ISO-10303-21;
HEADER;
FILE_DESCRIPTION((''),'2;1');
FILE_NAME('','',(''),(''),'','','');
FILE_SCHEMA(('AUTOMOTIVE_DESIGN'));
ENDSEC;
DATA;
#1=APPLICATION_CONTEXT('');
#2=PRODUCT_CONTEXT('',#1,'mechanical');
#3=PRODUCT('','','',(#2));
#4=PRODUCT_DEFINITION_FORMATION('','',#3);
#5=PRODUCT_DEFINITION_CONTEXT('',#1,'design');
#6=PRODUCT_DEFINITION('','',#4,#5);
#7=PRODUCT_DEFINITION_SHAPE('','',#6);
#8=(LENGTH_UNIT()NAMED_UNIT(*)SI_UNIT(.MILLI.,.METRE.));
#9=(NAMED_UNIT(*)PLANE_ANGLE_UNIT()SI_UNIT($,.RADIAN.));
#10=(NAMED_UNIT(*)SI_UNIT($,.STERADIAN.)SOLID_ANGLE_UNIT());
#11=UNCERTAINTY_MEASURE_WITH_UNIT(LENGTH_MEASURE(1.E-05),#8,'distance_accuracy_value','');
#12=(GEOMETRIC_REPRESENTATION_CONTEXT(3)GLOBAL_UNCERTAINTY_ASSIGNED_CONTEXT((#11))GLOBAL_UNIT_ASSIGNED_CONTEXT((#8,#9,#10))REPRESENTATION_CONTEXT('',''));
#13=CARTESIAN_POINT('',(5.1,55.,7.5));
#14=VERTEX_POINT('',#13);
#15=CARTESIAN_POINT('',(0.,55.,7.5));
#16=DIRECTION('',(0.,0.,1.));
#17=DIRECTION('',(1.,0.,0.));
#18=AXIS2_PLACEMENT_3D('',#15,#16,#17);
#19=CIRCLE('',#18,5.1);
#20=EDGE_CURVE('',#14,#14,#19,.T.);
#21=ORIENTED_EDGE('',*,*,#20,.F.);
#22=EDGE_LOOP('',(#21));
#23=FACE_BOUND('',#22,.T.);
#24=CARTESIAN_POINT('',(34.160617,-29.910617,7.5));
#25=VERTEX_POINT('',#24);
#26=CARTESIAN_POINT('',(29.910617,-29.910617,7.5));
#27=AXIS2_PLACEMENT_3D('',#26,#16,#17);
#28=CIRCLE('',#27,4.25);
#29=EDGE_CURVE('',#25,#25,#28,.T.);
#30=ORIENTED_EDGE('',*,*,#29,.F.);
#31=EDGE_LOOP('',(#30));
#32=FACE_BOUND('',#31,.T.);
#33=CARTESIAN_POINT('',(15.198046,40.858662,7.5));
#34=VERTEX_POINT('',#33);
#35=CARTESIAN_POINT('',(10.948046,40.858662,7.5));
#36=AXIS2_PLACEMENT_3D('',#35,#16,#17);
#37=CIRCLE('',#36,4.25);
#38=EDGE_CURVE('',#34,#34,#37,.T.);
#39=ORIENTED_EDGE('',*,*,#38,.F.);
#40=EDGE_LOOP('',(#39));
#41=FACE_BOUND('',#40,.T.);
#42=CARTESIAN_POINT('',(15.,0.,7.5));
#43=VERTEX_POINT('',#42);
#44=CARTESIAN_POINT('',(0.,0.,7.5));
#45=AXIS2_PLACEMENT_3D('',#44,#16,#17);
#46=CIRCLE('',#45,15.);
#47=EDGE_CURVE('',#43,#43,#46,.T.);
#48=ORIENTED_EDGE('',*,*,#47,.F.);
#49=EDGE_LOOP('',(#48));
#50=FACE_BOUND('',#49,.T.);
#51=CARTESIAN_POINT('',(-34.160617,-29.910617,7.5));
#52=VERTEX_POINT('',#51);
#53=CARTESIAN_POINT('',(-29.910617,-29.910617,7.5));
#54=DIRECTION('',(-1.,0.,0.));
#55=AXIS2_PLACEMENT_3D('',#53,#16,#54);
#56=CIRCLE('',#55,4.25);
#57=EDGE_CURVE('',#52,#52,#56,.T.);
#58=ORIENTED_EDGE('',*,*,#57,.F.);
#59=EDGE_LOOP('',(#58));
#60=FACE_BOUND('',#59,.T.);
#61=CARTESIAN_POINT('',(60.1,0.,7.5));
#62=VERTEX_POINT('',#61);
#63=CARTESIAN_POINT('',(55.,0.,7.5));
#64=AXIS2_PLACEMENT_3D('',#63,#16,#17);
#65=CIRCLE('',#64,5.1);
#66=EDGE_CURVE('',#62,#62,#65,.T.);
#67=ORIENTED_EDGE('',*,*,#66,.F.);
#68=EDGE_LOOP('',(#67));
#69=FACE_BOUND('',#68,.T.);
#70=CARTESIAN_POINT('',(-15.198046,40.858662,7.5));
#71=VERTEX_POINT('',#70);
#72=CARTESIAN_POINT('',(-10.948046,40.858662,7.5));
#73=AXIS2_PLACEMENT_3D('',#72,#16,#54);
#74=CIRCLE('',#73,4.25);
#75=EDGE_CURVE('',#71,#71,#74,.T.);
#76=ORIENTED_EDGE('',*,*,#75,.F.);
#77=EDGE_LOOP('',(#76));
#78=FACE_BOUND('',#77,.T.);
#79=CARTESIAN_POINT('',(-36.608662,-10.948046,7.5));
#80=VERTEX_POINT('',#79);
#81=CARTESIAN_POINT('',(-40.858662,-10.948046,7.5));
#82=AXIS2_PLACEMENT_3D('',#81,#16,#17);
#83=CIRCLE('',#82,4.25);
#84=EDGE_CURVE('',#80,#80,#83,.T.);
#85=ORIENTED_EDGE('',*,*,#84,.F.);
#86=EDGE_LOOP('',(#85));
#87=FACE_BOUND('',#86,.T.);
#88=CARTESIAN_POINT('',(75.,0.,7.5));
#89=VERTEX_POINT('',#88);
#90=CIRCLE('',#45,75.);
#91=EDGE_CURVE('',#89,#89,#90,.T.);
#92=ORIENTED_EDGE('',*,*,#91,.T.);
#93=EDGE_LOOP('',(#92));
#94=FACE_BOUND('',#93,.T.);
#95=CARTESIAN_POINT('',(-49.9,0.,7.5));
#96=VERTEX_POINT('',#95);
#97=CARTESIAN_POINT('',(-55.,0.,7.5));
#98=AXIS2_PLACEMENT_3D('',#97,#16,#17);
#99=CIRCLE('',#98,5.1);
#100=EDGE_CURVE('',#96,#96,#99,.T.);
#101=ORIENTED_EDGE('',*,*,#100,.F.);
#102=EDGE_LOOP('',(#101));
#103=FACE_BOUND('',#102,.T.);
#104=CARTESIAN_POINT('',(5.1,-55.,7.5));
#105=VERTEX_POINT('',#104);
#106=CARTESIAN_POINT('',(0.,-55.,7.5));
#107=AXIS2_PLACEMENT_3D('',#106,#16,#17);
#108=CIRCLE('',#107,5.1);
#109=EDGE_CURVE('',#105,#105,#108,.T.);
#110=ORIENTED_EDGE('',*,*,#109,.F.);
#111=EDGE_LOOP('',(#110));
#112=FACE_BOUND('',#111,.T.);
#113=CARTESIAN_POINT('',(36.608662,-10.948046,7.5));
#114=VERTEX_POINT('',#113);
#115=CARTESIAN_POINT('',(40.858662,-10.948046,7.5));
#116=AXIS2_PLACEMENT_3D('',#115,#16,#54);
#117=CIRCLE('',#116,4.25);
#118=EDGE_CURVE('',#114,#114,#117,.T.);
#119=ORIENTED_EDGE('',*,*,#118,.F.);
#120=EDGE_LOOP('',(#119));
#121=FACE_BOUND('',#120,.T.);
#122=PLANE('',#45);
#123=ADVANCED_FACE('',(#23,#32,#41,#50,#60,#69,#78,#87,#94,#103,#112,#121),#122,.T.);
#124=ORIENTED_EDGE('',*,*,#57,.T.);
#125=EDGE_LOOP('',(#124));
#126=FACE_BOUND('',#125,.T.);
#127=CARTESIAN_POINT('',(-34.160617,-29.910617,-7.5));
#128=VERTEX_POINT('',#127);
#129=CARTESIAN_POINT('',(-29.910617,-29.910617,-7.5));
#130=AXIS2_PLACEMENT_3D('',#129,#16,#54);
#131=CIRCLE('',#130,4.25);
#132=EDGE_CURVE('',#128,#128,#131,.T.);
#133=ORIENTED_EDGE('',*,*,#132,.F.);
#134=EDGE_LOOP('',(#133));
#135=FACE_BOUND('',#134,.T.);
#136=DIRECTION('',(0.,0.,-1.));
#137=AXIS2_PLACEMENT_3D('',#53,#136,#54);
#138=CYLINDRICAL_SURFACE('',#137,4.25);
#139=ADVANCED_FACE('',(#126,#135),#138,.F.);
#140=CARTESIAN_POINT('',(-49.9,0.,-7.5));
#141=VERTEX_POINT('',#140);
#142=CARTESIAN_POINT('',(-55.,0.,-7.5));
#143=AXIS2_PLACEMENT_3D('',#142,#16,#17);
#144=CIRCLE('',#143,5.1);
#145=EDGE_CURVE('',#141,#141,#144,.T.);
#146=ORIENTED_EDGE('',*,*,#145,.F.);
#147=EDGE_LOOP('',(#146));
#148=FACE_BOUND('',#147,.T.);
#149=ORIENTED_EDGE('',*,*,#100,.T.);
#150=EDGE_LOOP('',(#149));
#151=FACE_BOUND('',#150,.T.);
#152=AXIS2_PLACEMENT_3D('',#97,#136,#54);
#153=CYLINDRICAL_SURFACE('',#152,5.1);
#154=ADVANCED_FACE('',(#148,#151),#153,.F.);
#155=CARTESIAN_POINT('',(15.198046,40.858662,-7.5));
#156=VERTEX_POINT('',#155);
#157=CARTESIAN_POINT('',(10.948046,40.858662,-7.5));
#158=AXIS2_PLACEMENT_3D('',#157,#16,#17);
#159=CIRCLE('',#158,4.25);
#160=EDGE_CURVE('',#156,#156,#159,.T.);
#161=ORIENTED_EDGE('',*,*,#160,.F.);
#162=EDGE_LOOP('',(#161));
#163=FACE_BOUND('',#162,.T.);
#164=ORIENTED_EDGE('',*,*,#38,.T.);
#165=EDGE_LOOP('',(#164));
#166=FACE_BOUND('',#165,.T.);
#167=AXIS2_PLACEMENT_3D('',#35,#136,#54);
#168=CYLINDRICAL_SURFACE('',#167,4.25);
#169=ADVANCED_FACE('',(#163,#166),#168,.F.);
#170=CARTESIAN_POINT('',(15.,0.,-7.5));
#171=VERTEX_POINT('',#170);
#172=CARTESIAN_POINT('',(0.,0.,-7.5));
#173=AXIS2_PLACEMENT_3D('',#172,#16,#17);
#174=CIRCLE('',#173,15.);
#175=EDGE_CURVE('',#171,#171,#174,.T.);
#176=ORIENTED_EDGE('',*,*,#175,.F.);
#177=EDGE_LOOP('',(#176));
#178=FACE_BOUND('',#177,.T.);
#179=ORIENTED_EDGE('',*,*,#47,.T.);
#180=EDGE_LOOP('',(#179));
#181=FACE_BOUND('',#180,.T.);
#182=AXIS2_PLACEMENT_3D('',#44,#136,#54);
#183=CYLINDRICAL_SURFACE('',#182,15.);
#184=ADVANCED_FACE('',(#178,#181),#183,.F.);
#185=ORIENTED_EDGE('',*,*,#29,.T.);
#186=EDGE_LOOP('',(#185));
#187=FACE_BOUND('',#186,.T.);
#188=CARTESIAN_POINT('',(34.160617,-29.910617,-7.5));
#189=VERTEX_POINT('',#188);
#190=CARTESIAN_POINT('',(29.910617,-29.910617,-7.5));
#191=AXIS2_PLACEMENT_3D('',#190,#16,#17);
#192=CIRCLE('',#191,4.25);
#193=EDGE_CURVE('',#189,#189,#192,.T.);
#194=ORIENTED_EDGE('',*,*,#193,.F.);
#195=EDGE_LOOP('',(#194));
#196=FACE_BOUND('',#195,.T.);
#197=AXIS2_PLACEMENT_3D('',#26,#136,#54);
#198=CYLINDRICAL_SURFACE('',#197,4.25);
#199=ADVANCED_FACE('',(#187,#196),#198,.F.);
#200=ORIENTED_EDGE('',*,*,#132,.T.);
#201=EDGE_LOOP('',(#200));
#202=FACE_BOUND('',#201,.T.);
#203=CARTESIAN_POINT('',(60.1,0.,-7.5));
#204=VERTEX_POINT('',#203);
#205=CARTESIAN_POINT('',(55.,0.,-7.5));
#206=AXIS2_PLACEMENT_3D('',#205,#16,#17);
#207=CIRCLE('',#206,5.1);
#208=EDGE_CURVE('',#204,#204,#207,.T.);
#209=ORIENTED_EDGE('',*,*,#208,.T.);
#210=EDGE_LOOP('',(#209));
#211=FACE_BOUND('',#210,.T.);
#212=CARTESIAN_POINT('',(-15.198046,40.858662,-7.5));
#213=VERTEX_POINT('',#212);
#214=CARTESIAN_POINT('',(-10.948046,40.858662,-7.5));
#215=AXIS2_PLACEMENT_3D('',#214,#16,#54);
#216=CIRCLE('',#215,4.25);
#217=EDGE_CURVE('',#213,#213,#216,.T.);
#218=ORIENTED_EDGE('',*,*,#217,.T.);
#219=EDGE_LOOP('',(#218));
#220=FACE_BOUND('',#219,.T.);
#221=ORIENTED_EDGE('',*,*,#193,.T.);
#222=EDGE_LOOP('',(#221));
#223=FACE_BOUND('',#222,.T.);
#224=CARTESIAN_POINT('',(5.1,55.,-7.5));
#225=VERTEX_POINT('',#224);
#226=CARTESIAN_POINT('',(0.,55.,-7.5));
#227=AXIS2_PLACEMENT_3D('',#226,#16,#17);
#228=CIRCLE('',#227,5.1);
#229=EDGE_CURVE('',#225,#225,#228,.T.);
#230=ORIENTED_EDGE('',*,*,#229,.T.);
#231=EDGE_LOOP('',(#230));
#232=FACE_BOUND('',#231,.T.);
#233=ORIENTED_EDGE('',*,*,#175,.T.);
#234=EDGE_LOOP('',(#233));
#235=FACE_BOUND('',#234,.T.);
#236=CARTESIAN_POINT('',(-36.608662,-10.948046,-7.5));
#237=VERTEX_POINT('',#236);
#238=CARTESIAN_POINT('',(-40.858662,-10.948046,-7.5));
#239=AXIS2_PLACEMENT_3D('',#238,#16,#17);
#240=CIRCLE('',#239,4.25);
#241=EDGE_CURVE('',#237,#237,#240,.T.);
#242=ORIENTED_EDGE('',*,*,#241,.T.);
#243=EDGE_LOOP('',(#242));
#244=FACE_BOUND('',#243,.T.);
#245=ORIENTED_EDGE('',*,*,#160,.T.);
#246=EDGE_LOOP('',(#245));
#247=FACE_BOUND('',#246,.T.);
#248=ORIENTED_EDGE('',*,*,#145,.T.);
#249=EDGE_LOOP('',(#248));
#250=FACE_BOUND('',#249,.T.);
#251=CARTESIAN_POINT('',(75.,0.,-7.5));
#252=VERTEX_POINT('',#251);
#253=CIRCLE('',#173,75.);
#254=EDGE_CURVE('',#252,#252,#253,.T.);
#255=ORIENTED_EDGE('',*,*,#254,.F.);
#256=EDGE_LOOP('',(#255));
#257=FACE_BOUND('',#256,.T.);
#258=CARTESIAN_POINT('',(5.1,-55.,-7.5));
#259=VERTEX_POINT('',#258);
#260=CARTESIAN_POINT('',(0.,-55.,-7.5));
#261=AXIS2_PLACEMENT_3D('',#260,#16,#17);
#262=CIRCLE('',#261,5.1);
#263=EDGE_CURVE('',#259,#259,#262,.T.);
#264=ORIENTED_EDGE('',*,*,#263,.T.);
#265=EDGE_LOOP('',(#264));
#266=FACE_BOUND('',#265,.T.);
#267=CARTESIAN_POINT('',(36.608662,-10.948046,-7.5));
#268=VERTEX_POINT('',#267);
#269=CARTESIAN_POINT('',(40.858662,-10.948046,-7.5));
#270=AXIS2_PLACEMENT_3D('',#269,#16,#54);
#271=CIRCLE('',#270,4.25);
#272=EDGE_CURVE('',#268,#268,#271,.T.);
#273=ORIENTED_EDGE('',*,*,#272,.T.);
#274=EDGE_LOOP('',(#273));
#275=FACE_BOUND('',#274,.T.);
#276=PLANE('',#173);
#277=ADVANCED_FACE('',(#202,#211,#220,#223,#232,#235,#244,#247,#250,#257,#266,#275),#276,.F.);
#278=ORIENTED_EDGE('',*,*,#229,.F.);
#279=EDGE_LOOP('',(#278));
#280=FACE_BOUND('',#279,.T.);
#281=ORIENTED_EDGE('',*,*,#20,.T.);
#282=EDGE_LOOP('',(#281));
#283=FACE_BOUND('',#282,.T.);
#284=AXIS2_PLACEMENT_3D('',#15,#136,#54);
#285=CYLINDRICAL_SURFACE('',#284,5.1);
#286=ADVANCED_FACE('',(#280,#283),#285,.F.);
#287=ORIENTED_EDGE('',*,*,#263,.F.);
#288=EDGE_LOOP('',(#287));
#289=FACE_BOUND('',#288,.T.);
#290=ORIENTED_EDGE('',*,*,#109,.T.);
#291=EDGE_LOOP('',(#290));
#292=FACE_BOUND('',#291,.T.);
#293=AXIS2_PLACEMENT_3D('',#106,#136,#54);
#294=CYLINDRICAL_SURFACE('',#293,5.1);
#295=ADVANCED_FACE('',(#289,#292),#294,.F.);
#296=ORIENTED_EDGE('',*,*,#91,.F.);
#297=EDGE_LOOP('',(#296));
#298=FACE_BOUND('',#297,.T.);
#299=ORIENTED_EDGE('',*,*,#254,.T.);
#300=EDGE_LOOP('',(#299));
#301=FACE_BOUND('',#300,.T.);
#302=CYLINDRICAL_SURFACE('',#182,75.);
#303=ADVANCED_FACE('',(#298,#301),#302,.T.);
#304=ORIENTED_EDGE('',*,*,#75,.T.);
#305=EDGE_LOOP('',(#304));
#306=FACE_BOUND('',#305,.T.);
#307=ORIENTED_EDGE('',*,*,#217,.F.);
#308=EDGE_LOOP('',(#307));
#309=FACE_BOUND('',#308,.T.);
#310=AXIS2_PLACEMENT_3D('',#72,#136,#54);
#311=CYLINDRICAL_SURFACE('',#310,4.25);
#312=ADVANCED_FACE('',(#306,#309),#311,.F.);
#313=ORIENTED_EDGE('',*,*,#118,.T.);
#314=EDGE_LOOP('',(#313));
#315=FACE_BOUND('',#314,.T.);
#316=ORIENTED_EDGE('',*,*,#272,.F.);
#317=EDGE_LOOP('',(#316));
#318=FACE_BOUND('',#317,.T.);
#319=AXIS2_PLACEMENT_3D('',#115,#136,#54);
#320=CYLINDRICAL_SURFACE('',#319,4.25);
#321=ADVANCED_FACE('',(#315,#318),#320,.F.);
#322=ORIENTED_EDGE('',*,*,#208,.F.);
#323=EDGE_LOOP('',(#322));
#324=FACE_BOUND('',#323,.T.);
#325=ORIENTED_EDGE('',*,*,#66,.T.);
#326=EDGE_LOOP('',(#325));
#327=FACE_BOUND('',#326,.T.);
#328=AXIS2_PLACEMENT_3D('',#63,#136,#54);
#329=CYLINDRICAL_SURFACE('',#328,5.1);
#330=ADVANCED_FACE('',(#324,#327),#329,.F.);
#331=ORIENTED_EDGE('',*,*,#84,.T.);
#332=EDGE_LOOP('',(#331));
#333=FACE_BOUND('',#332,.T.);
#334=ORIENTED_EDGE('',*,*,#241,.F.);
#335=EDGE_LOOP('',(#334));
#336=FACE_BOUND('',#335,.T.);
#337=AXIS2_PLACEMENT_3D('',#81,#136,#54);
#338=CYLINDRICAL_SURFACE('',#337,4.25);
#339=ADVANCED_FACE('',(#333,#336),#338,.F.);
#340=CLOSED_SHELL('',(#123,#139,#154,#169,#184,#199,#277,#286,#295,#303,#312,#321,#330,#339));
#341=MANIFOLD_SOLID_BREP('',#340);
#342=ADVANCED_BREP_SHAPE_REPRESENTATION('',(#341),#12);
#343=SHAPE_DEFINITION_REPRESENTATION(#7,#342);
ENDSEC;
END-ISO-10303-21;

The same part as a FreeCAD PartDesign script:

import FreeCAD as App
import Part
import Sketcher
Q = App.Units.Quantity

doc = App.newDocument("Part")
params = doc.addObject("Spreadsheet::Sheet", "Params")
for row, (alias, value) in enumerate([
    ("sketch1_diameter", "150 mm"),
    ("sketch1_diameter2", "30 mm"),
    ("sketch1_diameter3", "8.5 mm"),
    ("sketch1_diameter4", "10.2 mm"),
    ("pad1_length", "15 mm"),
], start=1):
    params.set(f"A{row}", alias)
    params.set(f"B{row}", "=" + value)
    params.setAlias(f"B{row}", alias)

body = doc.addObject("PartDesign::Body", "Body")

# Sketch on XY plane
sketch1 = body.newObject("Sketcher::SketchObject", "Sketch")
sketch1.AttachmentSupport = (doc.getObject("XY_Plane"), [""])
sketch1.MapMode = "FlatFace"
sketch1.addGeometry([
    Part.Circle(App.Vector(0, 0, 0), App.Vector(0, 0, 1), 75),  # 0
    Part.Circle(App.Vector(-40.9, -10.9, 0), App.Vector(0, 0, 1), 4.2),  # 1
    Part.Circle(App.Vector(-29.9, -29.9, 0), App.Vector(0, 0, 1), 4.2),  # 2
    Part.Circle(App.Vector(0, -55, 0), App.Vector(0, 0, 1), 5.1),  # 3
    Part.Circle(App.Vector(29.9, -29.9, 0), App.Vector(0, 0, 1), 4.2),  # 4
    Part.Circle(App.Vector(40.9, -10.9, 0), App.Vector(0, 0, 1), 4.2),  # 5
    Part.Circle(App.Vector(-55, 0, 0), App.Vector(0, 0, 1), 5.1),  # 6
    Part.Circle(App.Vector(-10.9, 40.9, 0), App.Vector(0, 0, 1), 4.2),  # 7
    Part.Circle(App.Vector(0, 0, 0), App.Vector(0, 0, 1), 15),  # 8
    Part.Circle(App.Vector(55, 0, 0), App.Vector(0, 0, 1), 5.1),  # 9
    Part.Circle(App.Vector(10.9, 40.9, 0), App.Vector(0, 0, 1), 4.2),  # 10
    Part.Circle(App.Vector(0, 55, 0), App.Vector(0, 0, 1), 5.1),  # 11
], False)
sketch1.addConstraint([
    Sketcher.Constraint("Coincident", 0, 3, -1, 1),
    Sketcher.Constraint("Coincident", 8, 3, -1, 1),
    Sketcher.Constraint("Equal", 1, 2),
    Sketcher.Constraint("Equal", 2, 4),
    Sketcher.Constraint("Equal", 4, 5),
    Sketcher.Constraint("Equal", 3, 6),
    Sketcher.Constraint("Equal", 5, 7),
    Sketcher.Constraint("Equal", 6, 9),
    Sketcher.Constraint("Equal", 7, 10),
    Sketcher.Constraint("Equal", 9, 11),
    Sketcher.Constraint("Symmetric", 6, 3, 9, 3, -1, 1),
    Sketcher.Constraint("Symmetric", 3, 3, 11, 3, -1, 1),
    Sketcher.Constraint("Symmetric", 2, 3, 4, 3, -2),
    Sketcher.Constraint("Symmetric", 1, 3, 5, 3, -2),
    Sketcher.Constraint("Symmetric", 7, 3, 10, 3, -2),
    Sketcher.Constraint("PointOnObject", 3, 3, -2),
    Sketcher.Constraint("PointOnObject", 6, 3, -1),
    Sketcher.Constraint("Diameter", 0, Q("150 mm")),
    Sketcher.Constraint("Diameter", 8, Q("30 mm")),
    Sketcher.Constraint("Diameter", 1, Q("8.5 mm")),
    Sketcher.Constraint("Diameter", 3, Q("10.2 mm")),
    Sketcher.Constraint("DistanceY", 3, 3, -1, 1, Q("55 mm")),
    Sketcher.Constraint("DistanceX", 6, 3, -1, 1, Q("55 mm")),
    Sketcher.Constraint("DistanceY", 2, 3, 1, 3, Q("18.962571 mm")),
    Sketcher.Constraint("DistanceX", 1, 3, 4, 3, Q("70.769279 mm")),
    Sketcher.Constraint("DistanceY", 1, 3, 7, 3, Q("51.806708 mm")),
    Sketcher.Constraint("DistanceX", 2, 3, 7, 3, Q("18.962571 mm")),
    Sketcher.Constraint("DistanceX", 7, 3, 10, 3, Q("21.896091 mm")),
    Sketcher.Constraint("DistanceY", 1, 3, -1, 1, Q("10.948046 mm")),
])
sketch1.setExpression("Constraints[17]", "Params.sketch1_diameter")
sketch1.setExpression("Constraints[18]", "Params.sketch1_diameter2")
sketch1.setExpression("Constraints[19]", "Params.sketch1_diameter3")
sketch1.setExpression("Constraints[20]", "Params.sketch1_diameter4")
pad1 = body.newObject("PartDesign::Pad", "Pad")
pad1.Profile = sketch1
pad1.setExpression("Length", "Params.pad1_length")
pad1.Midplane = True

doc.recompute()
